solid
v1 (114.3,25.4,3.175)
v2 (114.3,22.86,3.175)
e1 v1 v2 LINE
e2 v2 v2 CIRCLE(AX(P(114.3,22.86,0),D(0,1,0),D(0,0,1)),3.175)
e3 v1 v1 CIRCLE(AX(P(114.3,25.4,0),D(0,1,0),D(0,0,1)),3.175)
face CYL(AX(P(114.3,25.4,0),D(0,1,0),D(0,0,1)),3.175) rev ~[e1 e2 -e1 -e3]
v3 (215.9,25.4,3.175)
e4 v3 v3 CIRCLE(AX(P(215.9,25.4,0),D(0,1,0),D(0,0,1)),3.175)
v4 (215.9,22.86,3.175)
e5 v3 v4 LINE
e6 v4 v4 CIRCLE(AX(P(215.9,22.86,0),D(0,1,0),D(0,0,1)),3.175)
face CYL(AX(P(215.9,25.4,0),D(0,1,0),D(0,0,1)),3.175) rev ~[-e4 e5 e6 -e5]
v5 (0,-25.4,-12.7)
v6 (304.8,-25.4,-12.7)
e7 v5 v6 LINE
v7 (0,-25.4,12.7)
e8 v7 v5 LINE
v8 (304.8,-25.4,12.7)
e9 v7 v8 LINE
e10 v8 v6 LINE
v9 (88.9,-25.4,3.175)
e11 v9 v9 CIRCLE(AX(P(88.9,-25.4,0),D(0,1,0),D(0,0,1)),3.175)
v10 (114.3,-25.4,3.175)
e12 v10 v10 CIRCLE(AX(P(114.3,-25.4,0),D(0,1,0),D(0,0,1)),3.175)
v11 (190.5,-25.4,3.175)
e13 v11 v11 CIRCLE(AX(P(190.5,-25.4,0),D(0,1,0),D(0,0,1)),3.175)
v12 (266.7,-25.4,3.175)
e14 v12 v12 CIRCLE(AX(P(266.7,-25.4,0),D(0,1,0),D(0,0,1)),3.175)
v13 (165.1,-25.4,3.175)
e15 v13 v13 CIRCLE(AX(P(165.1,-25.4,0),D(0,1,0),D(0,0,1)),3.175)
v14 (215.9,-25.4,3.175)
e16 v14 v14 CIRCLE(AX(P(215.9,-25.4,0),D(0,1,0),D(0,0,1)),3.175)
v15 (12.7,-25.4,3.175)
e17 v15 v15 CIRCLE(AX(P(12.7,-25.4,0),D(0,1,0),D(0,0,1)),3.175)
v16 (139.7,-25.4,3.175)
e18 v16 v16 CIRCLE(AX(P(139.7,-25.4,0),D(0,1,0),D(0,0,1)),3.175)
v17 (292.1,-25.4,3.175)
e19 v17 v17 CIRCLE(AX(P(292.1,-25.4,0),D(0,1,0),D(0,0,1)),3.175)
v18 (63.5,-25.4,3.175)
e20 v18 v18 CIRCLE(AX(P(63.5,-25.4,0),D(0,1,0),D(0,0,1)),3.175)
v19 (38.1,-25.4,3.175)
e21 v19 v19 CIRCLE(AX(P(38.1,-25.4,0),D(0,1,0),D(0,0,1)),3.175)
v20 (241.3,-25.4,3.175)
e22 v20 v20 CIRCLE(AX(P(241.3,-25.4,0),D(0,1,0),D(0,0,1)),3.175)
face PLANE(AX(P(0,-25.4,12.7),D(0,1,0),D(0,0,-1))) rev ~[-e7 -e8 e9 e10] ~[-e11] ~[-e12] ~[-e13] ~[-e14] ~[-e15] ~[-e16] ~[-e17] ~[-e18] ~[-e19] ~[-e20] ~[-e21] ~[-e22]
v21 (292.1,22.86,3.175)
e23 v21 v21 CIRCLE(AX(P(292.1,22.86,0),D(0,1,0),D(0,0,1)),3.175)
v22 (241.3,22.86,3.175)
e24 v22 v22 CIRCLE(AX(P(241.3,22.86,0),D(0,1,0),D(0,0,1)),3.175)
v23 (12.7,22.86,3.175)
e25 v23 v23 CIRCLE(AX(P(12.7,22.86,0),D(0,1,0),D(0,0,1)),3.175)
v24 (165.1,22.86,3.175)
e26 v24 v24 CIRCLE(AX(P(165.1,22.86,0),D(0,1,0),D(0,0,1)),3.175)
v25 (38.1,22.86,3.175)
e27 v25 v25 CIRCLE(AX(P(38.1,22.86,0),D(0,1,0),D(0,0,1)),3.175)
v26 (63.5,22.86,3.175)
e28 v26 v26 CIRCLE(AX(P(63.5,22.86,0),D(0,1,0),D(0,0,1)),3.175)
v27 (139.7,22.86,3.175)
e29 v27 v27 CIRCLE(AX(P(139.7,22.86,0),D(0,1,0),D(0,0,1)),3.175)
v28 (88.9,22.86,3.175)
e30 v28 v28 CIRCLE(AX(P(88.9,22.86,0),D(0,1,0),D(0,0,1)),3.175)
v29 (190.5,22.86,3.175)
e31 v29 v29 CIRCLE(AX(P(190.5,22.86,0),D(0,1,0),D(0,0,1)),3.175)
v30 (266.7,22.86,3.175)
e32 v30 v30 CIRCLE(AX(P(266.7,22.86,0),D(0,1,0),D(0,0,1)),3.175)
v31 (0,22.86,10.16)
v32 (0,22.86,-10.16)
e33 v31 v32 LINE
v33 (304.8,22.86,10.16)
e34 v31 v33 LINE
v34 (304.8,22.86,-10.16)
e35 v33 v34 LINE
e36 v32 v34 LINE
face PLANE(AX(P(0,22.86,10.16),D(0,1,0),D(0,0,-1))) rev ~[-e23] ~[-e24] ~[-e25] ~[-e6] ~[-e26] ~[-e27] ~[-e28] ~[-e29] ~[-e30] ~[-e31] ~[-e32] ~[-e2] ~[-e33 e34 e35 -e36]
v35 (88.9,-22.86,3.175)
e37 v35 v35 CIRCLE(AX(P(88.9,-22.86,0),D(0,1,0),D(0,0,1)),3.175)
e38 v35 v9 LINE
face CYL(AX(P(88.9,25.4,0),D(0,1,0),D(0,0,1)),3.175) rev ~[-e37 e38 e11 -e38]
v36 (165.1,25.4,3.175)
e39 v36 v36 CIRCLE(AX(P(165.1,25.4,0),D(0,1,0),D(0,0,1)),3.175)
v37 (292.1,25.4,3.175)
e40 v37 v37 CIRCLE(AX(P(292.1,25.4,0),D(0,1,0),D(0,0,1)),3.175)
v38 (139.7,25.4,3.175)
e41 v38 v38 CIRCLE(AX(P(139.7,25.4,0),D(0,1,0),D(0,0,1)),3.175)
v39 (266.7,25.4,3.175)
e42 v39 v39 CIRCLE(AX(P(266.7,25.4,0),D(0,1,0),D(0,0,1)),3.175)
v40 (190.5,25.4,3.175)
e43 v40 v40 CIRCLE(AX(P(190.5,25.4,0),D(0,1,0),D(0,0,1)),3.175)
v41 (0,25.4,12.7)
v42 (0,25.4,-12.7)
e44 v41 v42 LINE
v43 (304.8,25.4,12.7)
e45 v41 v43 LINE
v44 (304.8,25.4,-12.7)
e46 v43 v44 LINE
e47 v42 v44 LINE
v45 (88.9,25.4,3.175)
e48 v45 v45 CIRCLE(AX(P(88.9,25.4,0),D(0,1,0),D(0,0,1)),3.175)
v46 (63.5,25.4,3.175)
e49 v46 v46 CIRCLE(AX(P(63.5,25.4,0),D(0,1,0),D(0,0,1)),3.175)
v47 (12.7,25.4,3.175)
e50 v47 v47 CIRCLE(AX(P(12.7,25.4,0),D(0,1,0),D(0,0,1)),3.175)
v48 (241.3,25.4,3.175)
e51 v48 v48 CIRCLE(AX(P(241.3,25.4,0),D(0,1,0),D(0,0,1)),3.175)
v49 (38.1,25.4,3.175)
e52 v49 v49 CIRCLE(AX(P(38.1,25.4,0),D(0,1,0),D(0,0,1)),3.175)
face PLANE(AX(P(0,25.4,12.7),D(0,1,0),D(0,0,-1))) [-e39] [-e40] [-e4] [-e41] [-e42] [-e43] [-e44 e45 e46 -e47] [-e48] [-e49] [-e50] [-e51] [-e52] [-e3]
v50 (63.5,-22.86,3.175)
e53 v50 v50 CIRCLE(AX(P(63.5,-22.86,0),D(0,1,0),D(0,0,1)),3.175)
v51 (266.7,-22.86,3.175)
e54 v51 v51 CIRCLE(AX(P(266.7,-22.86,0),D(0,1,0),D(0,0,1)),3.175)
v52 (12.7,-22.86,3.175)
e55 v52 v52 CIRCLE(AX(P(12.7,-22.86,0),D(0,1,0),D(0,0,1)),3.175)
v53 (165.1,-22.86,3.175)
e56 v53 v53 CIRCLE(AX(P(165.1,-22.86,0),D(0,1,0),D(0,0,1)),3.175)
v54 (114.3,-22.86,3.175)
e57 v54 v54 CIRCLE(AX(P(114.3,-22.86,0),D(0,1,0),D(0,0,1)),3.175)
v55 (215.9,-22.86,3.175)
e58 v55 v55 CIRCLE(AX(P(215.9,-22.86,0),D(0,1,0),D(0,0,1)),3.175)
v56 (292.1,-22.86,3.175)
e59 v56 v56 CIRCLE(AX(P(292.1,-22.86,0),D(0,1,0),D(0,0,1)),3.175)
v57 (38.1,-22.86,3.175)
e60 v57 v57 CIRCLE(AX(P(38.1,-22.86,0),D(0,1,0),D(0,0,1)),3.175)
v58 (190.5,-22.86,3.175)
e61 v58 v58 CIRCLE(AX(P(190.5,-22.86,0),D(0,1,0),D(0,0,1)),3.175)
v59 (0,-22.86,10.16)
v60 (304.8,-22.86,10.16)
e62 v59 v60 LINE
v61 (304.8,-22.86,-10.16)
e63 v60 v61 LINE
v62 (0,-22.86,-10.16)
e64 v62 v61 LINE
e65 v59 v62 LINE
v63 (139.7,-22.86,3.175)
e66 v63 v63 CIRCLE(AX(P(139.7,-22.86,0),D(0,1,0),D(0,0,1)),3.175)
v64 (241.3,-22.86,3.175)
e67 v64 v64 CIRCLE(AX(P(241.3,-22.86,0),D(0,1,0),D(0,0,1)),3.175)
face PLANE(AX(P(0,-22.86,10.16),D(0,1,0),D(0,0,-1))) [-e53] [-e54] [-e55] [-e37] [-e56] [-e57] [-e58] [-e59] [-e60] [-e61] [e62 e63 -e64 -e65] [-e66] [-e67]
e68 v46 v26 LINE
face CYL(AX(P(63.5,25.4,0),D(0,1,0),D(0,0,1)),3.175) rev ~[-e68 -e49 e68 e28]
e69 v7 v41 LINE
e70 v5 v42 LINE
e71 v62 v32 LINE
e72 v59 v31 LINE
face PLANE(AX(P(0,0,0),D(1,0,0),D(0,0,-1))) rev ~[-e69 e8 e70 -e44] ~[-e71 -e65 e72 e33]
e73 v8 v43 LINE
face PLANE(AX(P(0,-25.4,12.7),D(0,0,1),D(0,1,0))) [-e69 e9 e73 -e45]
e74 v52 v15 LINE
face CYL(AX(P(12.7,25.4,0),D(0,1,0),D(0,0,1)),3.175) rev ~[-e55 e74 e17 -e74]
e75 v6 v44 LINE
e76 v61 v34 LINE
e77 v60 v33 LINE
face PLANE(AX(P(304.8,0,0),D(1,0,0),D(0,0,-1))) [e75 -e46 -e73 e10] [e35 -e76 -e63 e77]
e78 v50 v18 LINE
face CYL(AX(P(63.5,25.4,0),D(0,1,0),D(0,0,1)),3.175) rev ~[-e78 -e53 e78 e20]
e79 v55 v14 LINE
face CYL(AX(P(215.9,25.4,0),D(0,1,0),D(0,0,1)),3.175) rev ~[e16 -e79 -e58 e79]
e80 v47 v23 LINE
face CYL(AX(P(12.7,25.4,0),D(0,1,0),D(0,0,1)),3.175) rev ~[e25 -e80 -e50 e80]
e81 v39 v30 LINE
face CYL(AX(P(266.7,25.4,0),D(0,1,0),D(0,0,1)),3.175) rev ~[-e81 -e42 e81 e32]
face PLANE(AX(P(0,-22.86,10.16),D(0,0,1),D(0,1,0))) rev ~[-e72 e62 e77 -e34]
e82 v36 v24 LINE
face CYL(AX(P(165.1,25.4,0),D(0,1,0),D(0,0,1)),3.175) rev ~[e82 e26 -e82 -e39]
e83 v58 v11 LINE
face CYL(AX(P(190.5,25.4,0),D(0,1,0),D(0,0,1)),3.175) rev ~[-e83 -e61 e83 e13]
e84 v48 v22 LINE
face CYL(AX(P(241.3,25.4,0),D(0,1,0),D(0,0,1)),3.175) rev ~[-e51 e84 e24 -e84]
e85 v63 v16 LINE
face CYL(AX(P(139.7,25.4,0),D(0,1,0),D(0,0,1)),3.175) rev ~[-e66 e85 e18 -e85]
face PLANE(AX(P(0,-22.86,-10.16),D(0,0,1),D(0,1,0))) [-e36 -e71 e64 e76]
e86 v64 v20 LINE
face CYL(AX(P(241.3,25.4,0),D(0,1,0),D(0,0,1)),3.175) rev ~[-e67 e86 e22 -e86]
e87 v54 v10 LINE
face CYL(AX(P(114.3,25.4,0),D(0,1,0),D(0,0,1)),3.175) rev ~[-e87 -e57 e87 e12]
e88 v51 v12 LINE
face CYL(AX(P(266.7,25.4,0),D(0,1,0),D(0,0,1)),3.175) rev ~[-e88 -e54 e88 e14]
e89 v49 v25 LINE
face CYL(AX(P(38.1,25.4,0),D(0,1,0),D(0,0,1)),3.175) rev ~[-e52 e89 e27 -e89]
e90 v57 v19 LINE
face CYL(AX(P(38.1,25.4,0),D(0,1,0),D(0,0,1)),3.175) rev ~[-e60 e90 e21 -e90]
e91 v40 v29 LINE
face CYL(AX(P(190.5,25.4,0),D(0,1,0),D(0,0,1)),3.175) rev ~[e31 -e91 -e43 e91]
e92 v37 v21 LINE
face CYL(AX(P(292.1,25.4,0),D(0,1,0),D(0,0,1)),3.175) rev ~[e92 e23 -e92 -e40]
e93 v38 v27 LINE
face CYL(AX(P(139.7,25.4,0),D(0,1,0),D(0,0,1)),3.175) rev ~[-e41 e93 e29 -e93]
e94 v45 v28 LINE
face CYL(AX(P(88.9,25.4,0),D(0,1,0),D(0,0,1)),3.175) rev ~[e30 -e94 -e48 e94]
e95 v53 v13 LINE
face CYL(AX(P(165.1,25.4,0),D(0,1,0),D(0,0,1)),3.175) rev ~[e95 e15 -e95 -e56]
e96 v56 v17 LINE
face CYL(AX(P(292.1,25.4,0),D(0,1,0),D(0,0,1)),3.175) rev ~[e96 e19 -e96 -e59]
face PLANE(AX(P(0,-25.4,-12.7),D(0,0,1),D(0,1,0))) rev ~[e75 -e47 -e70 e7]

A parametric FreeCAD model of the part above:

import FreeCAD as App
import Part
import Sketcher
Q = App.Units.Quantity


def add_polygon(sketch, points):
    """Adds a closed chain of lines whose ends are joined by coincident constraints."""
    first, n = sketch.GeometryCount, len(points)
    for a, b in zip(points, points[1:] + points[:1]):
        sketch.addGeometry(Part.LineSegment(App.Vector(*a, 0), App.Vector(*b, 0)), False)
    for i in range(n):
        sketch.addConstraint(Sketcher.Constraint("Coincident", first + i, 2, first + (i + 1) % n, 1))

doc = App.newDocument("Part")
params = doc.addObject("Spreadsheet::Sheet", "Params")
for row, (alias, value) in enumerate([
    ("sketch1_width", "2 in"),
    ("sketch1_height", "1 in"),
    ("sketch1_width2", "1.8 in"),
    ("sketch1_height2", "0.8 in"),
    ("pad1_length", "12 in"),
    ("sketch2_diameter", "0.25 in"),
    ("pocket1_length", "12 in"),
], start=1):
    params.set(f"A{row}", alias)
    params.set(f"B{row}", "=" + value)
    params.setAlias(f"B{row}", alias)

body = doc.addObject("PartDesign::Body", "Body")

# Sketch on YZ plane
sketch1 = body.newObject("Sketcher::SketchObject", "Sketch")
sketch1.AttachmentSupport = (doc.getObject("YZ_Plane"), [""])
sketch1.MapMode = "FlatFace"
add_polygon(sketch1, [(25, 13), (-25, 13), (-25, -13), (25, -13)])  # lines 0-3
add_polygon(sketch1, [(-23, -10), (-23, 10), (23, 10), (23, -10)])  # lines 4-7
sketch1.addConstraint(Sketcher.Constraint("Horizontal", 0))
sketch1.addConstraint(Sketcher.Constraint("Vertical", 1))
sketch1.addConstraint(Sketcher.Constraint("Horizontal", 2))
sketch1.addConstraint(Sketcher.Constraint("Vertical", 3))
sketch1.addConstraint(Sketcher.Constraint("Vertical", 4))
sketch1.addConstraint(Sketcher.Constraint("Horizontal", 5))
sketch1.addConstraint(Sketcher.Constraint("Vertical", 6))
sketch1.addConstraint(Sketcher.Constraint("Horizontal", 7))
sketch1.addConstraint(Sketcher.Constraint("Symmetric", 0, 2, 2, 2, -1, 1))
sketch1.addConstraint(Sketcher.Constraint("Symmetric", 4, 2, 6, 2, -1, 1))
sketch1.addConstraint(Sketcher.Constraint("DistanceX", 0, 2, 0, 1, Q("2 in")))
sketch1.addConstraint(Sketcher.Constraint("DistanceY", 1, 2, 1, 1, Q("1 in")))
sketch1.addConstraint(Sketcher.Constraint("DistanceX", 5, 1, 5, 2, Q("1.8 in")))
sketch1.addConstraint(Sketcher.Constraint("DistanceY", 4, 1, 4, 2, Q("0.8 in")))
sketch1.setExpression("Constraints[18]", "Params.sketch1_width")
sketch1.setExpression("Constraints[19]", "Params.sketch1_height")
sketch1.setExpression("Constraints[20]", "Params.sketch1_width2")
sketch1.setExpression("Constraints[21]", "Params.sketch1_height2")
pad1 = body.newObject("PartDesign::Pad", "Pad")
pad1.Profile = sketch1
pad1.setExpression("Length", "Params.pad1_length")

# Sketch on XZ plane
sketch2 = body.newObject("Sketcher::SketchObject", "Sketch001")
sketch2.AttachmentSupport = (doc.getObject("XZ_Plane"), [""])
sketch2.MapMode = "FlatFace"
sketch2.AttachmentOffset = App.Placement(App.Vector(0, 0, -1 * 25.4), App.Rotation())
sketch2.addGeometry(Part.Circle(App.Vector(12.7, 0, 0), App.Vector(0, 0, 1), 3.2), False)
sketch2.addGeometry(Part.Circle(App.Vector(38.1, 0, 0), App.Vector(0, 0, 1), 3.2), False)
sketch2.addGeometry(Part.Circle(App.Vector(63.5, 0, 0), App.Vector(0, 0, 1), 3.2), False)
sketch2.addGeometry(Part.Circle(App.Vector(88.9, 0, 0), App.Vector(0, 0, 1), 3.2), False)
sketch2.addGeometry(Part.Circle(App.Vector(114.3, 0, 0), App.Vector(0, 0, 1), 3.2), False)
sketch2.addGeometry(Part.Circle(App.Vector(139.7, 0, 0), App.Vector(0, 0, 1), 3.2), False)
sketch2.addGeometry(Part.Circle(App.Vector(165.1, 0, 0), App.Vector(0, 0, 1), 3.2), False)
sketch2.addGeometry(Part.Circle(App.Vector(190.5, 0, 0), App.Vector(0, 0, 1), 3.2), False)
sketch2.addGeometry(Part.Circle(App.Vector(215.9, 0, 0), App.Vector(0, 0, 1), 3.2), False)
sketch2.addGeometry(Part.Circle(App.Vector(241.3, 0, 0), App.Vector(0, 0, 1), 3.2), False)
sketch2.addGeometry(Part.Circle(App.Vector(266.7, 0, 0), App.Vector(0, 0, 1), 3.2), False)
sketch2.addGeometry(Part.Circle(App.Vector(292.1, 0, 0), App.Vector(0, 0, 1), 3.2), False)
sketch2.addConstraint(Sketcher.Constraint("Equal", 0, 1))
sketch2.addConstraint(Sketcher.Constraint("Equal", 1, 2))
sketch2.addConstraint(Sketcher.Constraint("Equal", 2, 3))
sketch2.addConstraint(Sketcher.Constraint("Equal", 3, 4))
sketch2.addConstraint(Sketcher.Constraint("Equal", 4, 5))
sketch2.addConstraint(Sketcher.Constraint("Equal", 5, 6))
sketch2.addConstraint(Sketcher.Constraint("Equal", 6, 7))
sketch2.addConstraint(Sketcher.Constraint("Equal", 7, 8))
sketch2.addConstraint(Sketcher.Constraint("Equal", 8, 9))
sketch2.addConstraint(Sketcher.Constraint("Equal", 9, 10))
sketch2.addConstraint(Sketcher.Constraint("Equal", 10, 11))
sketch2.addConstraint(Sketcher.Constraint("PointOnObject", 0, 3, -1))
sketch2.addConstraint(Sketcher.Constraint("PointOnObject", 1, 3, -1))
sketch2.addConstraint(Sketcher.Constraint("PointOnObject", 2, 3, -1))
sketch2.addConstraint(Sketcher.Constraint("PointOnObject", 3, 3, -1))
sketch2.addConstraint(Sketcher.Constraint("PointOnObject", 4, 3, -1))
sketch2.addConstraint(Sketcher.Constraint("PointOnObject", 5, 3, -1))
sketch2.addConstraint(Sketcher.Constraint("PointOnObject", 6, 3, -1))
sketch2.addConstraint(Sketcher.Constraint("PointOnObject", 7, 3, -1))
sketch2.addConstraint(Sketcher.Constraint("PointOnObject", 8, 3, -1))
sketch2.addConstraint(Sketcher.Constraint("PointOnObject", 9, 3, -1))
sketch2.addConstraint(Sketcher.Constraint("PointOnObject", 10, 3, -1))
sketch2.addConstraint(Sketcher.Constraint("PointOnObject", 11, 3, -1))
sketch2.addConstraint(Sketcher.Constraint("Diameter", 0, Q("0.25 in")))
sketch2.addConstraint(Sketcher.Constraint("DistanceX", 0, 3, 1, 3, Q("1 in")))
sketch2.addConstraint(Sketcher.Constraint("DistanceX", 1, 3, 2, 3, Q("1 in")))
sketch2.addConstraint(Sketcher.Constraint("DistanceX", 2, 3, 3, 3, Q("1 in")))
sketch2.addConstraint(Sketcher.Constraint("DistanceX", 3, 3, 4, 3, Q("1 in")))
sketch2.addConstraint(Sketcher.Constraint("DistanceX", 4, 3, 5, 3, Q("1 in")))
sketch2.addConstraint(Sketcher.Constraint("DistanceX", 5, 3, 6, 3, Q("1 in")))
sketch2.addConstraint(Sketcher.Constraint("DistanceX", 6, 3, 7, 3, Q("1 in")))
sketch2.addConstraint(Sketcher.Constraint("DistanceX", 7, 3, 8, 3, Q("1 in")))
sketch2.addConstraint(Sketcher.Constraint("DistanceX", 8, 3, 9, 3, Q("1 in")))
sketch2.addConstraint(Sketcher.Constraint("DistanceX", 9, 3, 10, 3, Q("1 in")))
sketch2.addConstraint(Sketcher.Constraint("DistanceX", 10, 3, 11, 3, Q("1 in")))
sketch2.addConstraint(Sketcher.Constraint("DistanceX", -1, 1, 0, 3, Q("0.5 in")))
sketch2.setExpression("Constraints[23]", "Params.sketch2_diameter")
pocket1 = body.newObject("PartDesign::Pocket", "Pocket")
pocket1.Profile = sketch2
pocket1.setExpression("Length", "Params.pocket1_length")
pocket1.Reversed = True

doc.recompute()
